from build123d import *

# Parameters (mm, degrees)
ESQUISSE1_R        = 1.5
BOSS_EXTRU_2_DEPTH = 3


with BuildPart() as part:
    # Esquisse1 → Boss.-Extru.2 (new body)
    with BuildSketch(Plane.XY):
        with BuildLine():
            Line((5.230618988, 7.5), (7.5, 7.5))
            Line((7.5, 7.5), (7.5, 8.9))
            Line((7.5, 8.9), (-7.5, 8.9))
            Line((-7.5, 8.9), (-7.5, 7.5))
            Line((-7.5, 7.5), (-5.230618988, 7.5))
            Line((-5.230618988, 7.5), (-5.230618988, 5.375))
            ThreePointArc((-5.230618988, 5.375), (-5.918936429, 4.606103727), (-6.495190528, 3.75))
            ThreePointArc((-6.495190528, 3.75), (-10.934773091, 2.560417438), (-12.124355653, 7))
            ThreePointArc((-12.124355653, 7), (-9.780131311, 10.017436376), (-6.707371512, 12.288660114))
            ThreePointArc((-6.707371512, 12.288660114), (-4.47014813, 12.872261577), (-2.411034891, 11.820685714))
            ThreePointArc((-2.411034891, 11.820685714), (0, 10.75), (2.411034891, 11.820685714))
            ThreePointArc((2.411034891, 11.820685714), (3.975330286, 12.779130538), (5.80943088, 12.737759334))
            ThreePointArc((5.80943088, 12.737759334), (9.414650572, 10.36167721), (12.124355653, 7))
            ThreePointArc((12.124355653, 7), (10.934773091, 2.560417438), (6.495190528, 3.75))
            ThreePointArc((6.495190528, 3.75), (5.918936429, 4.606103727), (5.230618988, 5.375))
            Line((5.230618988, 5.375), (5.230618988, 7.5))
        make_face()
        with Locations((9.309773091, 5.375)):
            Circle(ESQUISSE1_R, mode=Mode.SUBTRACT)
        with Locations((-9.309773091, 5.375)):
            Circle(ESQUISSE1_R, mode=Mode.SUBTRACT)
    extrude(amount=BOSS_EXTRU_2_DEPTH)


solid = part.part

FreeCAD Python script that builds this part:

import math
import FreeCAD as App
import Part
import Sketcher
Q = App.Units.Quantity

doc = App.newDocument("Part")
params = doc.addObject("Spreadsheet::Sheet", "Params")
for row, (alias, value) in enumerate([
    ("sketch1_diameter", "3 mm"),
    ("sketch1_radius", "14 mm"),
    ("sketch1_radius2", "7.5 mm"),
    ("sketch1_width", "15 mm"),
    ("sketch1_height", "1.4 mm"),
    ("pad1_length", "3 mm"),
], start=1):
    params.set(f"A{row}", alias)
    params.set(f"B{row}", "=" + value)
    params.setAlias(f"B{row}", alias)

body = doc.addObject("PartDesign::Body", "Body")

# Sketch on XY plane
sketch1 = body.newObject("Sketcher::SketchObject", "Sketch")
sketch1.AttachmentSupport = (doc.getObject("XY_Plane"), [""])
sketch1.MapMode = "FlatFace"
sketch1.addGeometry([
    Part.LineSegment(App.Vector(7.5, 7.5, 0), App.Vector(5.2, 7.5, 0)),  # 0
    Part.LineSegment(App.Vector(5.2, 7.5, 0), App.Vector(5.2, 5.4, 0)),  # 1
    Part.ArcOfCircle(Part.Circle(App.Vector(0, 0, 0), App.Vector(0, 0, 1), 7.5), math.radians(30), math.radians(45.78)),  # 2
    Part.ArcOfCircle(Part.Circle(App.Vector(9.3, 5.4, 0), App.Vector(0, 0, 1), 3.2), math.radians(-150), math.radians(30)),  # 3
    Part.ArcOfCircle(Part.Circle(App.Vector(0, 0, 0), App.Vector(0, 0, 1), 14), math.radians(30), math.radians(65)),  # 4
    Part.ArcOfCircle(Part.Circle(App.Vector(4.8, 9.6, 0), App.Vector(0, 0, 1), 3.2), math.radians(72), math.radians(138)),  # 5
    Part.ArcOfCircle(Part.Circle(App.Vector(0, 14, 0), App.Vector(0, 0, 1), 3.3), math.radians(-138), math.radians(-42)),  # 6
    Part.ArcOfCircle(Part.Circle(App.Vector(-4.8, 9.6, 0), App.Vector(0, 0, 1), 3.2), math.radians(42), math.radians(125)),  # 7
    Part.ArcOfCircle(Part.Circle(App.Vector(0, 0, 0), App.Vector(0, 0, 1), 14), math.radians(119), math.radians(150)),  # 8
    Part.ArcOfCircle(Part.Circle(App.Vector(-9.3, 5.4, 0), App.Vector(0, 0, 1), 3.2), math.radians(150), math.radians(330)),  # 9
    Part.ArcOfCircle(Part.Circle(App.Vector(0, 0, 0), App.Vector(0, 0, 1), 7.5), math.radians(134.22), math.radians(150)),  # 10
    Part.LineSegment(App.Vector(-5.2, 5.4, 0), App.Vector(-5.2, 7.5, 0)),  # 11
    Part.LineSegment(App.Vector(-5.2, 7.5, 0), App.Vector(-7.5, 7.5, 0)),  # 12
    Part.LineSegment(App.Vector(-7.5, 7.5, 0), App.Vector(-7.5, 8.9, 0)),  # 13
    Part.LineSegment(App.Vector(-7.5, 8.9, 0), App.Vector(7.5, 8.9, 0)),  # 14
    Part.LineSegment(App.Vector(7.5, 8.9, 0), App.Vector(7.5, 7.5, 0)),  # 15
    Part.Circle(App.Vector(9.3, 5.4, 0), App.Vector(0, 0, 1), 1.5),  # 16
    Part.Circle(App.Vector(-9.3, 5.4, 0), App.Vector(0, 0, 1), 1.5),  # 17
], False)
sketch1.addConstraint([
    Sketcher.Constraint("Coincident", 0, 2, 1, 1),
    Sketcher.Constraint("Coincident", 1, 2, 2, 2),
    Sketcher.Constraint("Tangent", 2, 1, 3, 1),
    Sketcher.Constraint("Tangent", 3, 2, 4, 1),
    Sketcher.Constraint("Coincident", 4, 2, 5, 1),
    Sketcher.Constraint("Tangent", 5, 2, 6, 2),
    Sketcher.Constraint("Tangent", 6, 1, 7, 1),
    Sketcher.Constraint("Coincident", 7, 2, 8, 1),
    Sketcher.Constraint("Tangent", 8, 2, 9, 1),
    Sketcher.Constraint("Tangent", 9, 2, 10, 2),
    Sketcher.Constraint("Coincident", 10, 1, 11, 1),
    Sketcher.Constraint("Coincident", 11, 2, 12, 1),
    Sketcher.Constraint("Coincident", 12, 2, 13, 1),
    Sketcher.Constraint("Coincident", 13, 2, 14, 1),
    Sketcher.Constraint("Coincident", 14, 2, 15, 1),
    Sketcher.Constraint("Coincident", 15, 2, 0, 1),
    Sketcher.Constraint("Horizontal", 0),
    Sketcher.Constraint("Vertical", 1),
    Sketcher.Constraint("Vertical", 11),
    Sketcher.Constraint("Horizontal", 12),
    Sketcher.Constraint("Vertical", 13),
    Sketcher.Constraint("Horizontal", 14),
    Sketcher.Constraint("Vertical", 15),
    Sketcher.Constraint("Coincident", 2, 3, -1, 1),
    Sketcher.Constraint("Coincident", 4, 3, -1, 1),
    Sketcher.Constraint("Coincident", 8, 3, -1, 1),
    Sketcher.Constraint("Coincident", 10, 3, -1, 1),
    Sketcher.Constraint("Coincident", 16, 3, 3, 3),
    Sketcher.Constraint("Coincident", 17, 3, 9, 3),
    Sketcher.Constraint("Equal", 3, 5),
    Sketcher.Constraint("Equal", 5, 6),
    Sketcher.Constraint("Equal", 6, 7),
    Sketcher.Constraint("Equal", 4, 8),
    Sketcher.Constraint("Equal", 7, 9),
    Sketcher.Constraint("Equal", 16, 17),
    Sketcher.Constraint("Symmetric", 5, 3, 7, 3, -2),
    Sketcher.Constraint("Symmetric", 0, 2, 11, 2, -2),
    Sketcher.Constraint("Horizontal", 3, 3, 9, 3),
    Sketcher.Constraint("Horizontal", 17, 3, 1, 2),
    Sketcher.Constraint("Equal", 0, 12),
    Sketcher.Constraint("Diameter", 16, Q("3 mm")),
    Sketcher.Constraint("Radius", 4, Q("14 mm")),
    Sketcher.Constraint("Radius", 2, Q("7.5 mm")),
    Sketcher.Constraint("DistanceX", 14, 1, 14, 2, Q("15 mm")),
    Sketcher.Constraint("DistanceY", 13, 1, 13, 2, Q("1.4 mm")),
    Sketcher.Constraint("DistanceY", -1, 1, 6, 3, Q("14 mm")),
    Sketcher.Constraint("DistanceY", -1, 1, 3, 2, Q("7 mm")),
    Sketcher.Constraint("DistanceY", -1, 1, 0, 2, Q("7.5 mm")),
    Sketcher.Constraint("DistanceX", 7, 2, 7, 3, Q("1.885302 mm")),
])
sketch1.setExpression("Constraints[40]", "Params.sketch1_diameter")
sketch1.setExpression("Constraints[41]", "Params.sketch1_radius")
sketch1.setExpression("Constraints[42]", "Params.sketch1_radius2")
sketch1.setExpression("Constraints[43]", "Params.sketch1_width")
sketch1.setExpression("Constraints[44]", "Params.sketch1_height")
pad1 = body.newObject("PartDesign::Pad", "Pad")
pad1.Profile = sketch1
pad1.setExpression("Length", "Params.pad1_length")

doc.recompute()
